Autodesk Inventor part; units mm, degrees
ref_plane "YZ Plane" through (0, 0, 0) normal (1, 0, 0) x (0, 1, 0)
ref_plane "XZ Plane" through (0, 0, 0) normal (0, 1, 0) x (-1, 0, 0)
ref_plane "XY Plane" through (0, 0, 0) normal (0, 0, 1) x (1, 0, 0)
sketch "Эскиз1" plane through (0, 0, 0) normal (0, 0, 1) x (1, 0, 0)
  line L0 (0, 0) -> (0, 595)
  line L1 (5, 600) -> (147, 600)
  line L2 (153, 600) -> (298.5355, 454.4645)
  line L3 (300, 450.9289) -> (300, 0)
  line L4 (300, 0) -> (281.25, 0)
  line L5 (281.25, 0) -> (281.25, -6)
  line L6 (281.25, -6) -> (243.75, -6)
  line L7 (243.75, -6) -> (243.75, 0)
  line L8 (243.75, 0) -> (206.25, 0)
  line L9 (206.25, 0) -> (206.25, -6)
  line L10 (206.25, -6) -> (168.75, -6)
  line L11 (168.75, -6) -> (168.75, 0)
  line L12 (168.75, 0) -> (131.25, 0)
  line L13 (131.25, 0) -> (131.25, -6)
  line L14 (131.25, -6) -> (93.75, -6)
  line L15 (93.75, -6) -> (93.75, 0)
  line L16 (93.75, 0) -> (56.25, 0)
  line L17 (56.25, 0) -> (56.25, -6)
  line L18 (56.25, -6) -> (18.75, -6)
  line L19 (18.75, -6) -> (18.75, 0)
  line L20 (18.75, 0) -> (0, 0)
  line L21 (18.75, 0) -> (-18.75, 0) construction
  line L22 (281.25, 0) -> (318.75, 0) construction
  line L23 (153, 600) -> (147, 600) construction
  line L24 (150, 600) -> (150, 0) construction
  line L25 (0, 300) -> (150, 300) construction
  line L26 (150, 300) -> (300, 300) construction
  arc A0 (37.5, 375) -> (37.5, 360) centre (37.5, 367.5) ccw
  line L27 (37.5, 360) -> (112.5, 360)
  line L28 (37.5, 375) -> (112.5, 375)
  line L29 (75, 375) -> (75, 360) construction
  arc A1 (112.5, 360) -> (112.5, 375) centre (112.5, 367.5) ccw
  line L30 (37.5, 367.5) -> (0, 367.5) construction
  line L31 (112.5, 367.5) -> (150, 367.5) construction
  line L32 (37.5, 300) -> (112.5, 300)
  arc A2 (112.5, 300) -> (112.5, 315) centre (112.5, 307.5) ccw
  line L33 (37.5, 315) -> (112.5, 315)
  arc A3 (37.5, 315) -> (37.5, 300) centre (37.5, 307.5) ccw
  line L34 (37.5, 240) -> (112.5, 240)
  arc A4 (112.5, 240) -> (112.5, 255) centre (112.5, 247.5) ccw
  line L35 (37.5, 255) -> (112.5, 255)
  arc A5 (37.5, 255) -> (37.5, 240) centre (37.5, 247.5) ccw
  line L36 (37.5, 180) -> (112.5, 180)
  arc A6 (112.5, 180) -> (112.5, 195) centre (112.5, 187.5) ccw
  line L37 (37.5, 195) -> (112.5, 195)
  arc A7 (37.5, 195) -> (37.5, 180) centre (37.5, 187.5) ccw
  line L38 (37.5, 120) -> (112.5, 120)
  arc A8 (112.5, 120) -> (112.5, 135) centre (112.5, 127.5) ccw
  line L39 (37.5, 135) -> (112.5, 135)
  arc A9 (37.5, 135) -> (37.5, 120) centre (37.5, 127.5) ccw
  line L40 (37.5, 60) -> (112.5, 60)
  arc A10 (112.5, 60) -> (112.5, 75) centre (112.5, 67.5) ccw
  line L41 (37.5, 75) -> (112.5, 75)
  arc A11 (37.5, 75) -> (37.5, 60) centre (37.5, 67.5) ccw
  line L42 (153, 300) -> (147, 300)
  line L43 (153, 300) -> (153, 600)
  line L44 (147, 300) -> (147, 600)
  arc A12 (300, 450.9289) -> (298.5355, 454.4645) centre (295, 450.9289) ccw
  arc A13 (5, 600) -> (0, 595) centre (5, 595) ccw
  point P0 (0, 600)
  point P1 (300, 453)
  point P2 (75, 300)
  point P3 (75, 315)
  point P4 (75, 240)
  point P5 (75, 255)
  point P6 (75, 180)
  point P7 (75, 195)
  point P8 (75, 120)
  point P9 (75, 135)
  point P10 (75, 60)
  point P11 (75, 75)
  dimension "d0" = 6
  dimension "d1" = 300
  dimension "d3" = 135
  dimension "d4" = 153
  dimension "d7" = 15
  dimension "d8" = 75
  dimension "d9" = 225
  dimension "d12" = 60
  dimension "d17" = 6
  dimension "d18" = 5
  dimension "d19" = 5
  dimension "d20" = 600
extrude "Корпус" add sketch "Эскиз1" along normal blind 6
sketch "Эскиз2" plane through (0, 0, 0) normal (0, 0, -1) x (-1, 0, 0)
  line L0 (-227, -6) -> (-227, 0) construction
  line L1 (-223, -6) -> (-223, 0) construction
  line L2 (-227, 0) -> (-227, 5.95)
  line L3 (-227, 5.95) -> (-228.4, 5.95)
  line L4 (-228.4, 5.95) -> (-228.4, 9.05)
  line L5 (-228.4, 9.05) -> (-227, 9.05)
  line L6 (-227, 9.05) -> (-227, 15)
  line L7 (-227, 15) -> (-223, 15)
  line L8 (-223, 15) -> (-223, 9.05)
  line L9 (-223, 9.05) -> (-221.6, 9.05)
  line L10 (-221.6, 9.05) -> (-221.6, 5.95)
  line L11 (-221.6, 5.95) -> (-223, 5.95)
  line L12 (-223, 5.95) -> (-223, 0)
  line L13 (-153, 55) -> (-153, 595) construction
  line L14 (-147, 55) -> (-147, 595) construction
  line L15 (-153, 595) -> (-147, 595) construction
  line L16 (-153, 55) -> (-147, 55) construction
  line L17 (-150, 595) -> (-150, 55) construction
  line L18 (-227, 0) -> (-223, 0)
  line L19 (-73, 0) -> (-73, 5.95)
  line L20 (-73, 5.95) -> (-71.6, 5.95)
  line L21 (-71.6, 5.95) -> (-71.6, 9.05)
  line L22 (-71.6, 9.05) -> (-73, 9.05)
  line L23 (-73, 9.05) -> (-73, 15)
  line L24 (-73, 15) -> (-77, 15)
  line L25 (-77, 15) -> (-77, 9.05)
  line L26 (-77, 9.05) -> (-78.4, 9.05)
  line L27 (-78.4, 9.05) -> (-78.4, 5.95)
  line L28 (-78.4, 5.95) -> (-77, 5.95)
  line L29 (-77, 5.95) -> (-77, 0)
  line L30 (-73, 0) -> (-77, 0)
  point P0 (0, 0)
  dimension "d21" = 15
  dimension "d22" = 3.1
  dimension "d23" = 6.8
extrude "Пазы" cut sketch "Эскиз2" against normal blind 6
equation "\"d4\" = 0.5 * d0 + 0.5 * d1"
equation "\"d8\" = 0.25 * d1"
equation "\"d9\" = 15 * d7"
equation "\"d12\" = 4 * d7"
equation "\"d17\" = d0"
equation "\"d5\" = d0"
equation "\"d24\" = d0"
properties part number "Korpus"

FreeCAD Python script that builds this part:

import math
import FreeCAD as App
import Part
import Sketcher

V = App.Vector
Q = App.Units.Quantity

doc = App.newDocument("Part")
body = doc.addObject("PartDesign::Body", "Body")

sketch1 = body.newObject("Sketcher::SketchObject", "Sketch")
sketch1.AttachmentSupport = (doc.getObject("XY_Plane"), [""])
sketch1.MapMode = "FlatFace"
sketch1.addGeometry([
    Part.LineSegment(V(0, 595, 0), V(0, 0, 0)),
    Part.LineSegment(V(0, 0, 0), V(18.8, 0, 0)),
    Part.LineSegment(V(18.8, 0, 0), V(18.8, -6, 0)),
    Part.LineSegment(V(18.8, -6, 0), V(56.2, -6, 0)),
    Part.LineSegment(V(56.2, -6, 0), V(56.2, 0, 0)),
    Part.LineSegment(V(56.2, 0, 0), V(93.8, 0, 0)),
    Part.LineSegment(V(93.8, 0, 0), V(93.8, -6, 0)),
    Part.LineSegment(V(93.8, -6, 0), V(131.2, -6, 0)),
    Part.LineSegment(V(131.2, -6, 0), V(131.2, 0, 0)),
    Part.LineSegment(V(131.2, 0, 0), V(168.8, 0, 0)),
    Part.LineSegment(V(168.8, 0, 0), V(168.8, -6, 0)),
    Part.LineSegment(V(168.8, -6, 0), V(206.2, -6, 0)),
    Part.LineSegment(V(206.2, -6, 0), V(206.2, 0, 0)),
    Part.LineSegment(V(206.2, 0, 0), V(243.8, 0, 0)),
    Part.LineSegment(V(243.8, 0, 0), V(243.8, -6, 0)),
    Part.LineSegment(V(243.8, -6, 0), V(281.2, -6, 0)),
    Part.LineSegment(V(281.2, -6, 0), V(281.2, 0, 0)),
    Part.LineSegment(V(281.2, 0, 0), V(300, 0, 0)),
    Part.LineSegment(V(300, 0, 0), V(300, 450.9, 0)),
    Part.ArcOfCircle(Part.Circle(V(295, 450.9, 0), V(0, 0, 1), 5), math.radians(0), math.radians(45)),
    Part.LineSegment(V(298.5, 454.5, 0), V(153, 600, 0)),
    Part.LineSegment(V(153, 600, 0), V(153, 300, 0)),
    Part.LineSegment(V(153, 300, 0), V(147, 300, 0)),
    Part.LineSegment(V(147, 300, 0), V(147, 600, 0)),
    Part.LineSegment(V(147, 600, 0), V(5, 600, 0)),
    Part.ArcOfCircle(Part.Circle(V(5, 595, 0), V(0, 0, 1), 5), math.radians(90), math.radians(180)),
    Part.LineSegment(V(112.5, 60, 0), V(37.5, 60, 0)),
    Part.ArcOfCircle(Part.Circle(V(37.5, 67.5, 0), V(0, 0, 1), 7.5), math.radians(90), math.radians(270)),
    Part.LineSegment(V(37.5, 75, 0), V(112.5, 75, 0)),
    Part.ArcOfCircle(Part.Circle(V(112.5, 67.5, 0), V(0, 0, 1), 7.5), math.radians(-90), math.radians(90)),
    Part.LineSegment(V(112.5, 120, 0), V(37.5, 120, 0)),
    Part.ArcOfCircle(Part.Circle(V(37.5, 127.5, 0), V(0, 0, 1), 7.5), math.radians(90), math.radians(270)),
    Part.LineSegment(V(37.5, 135, 0), V(112.5, 135, 0)),
    Part.ArcOfCircle(Part.Circle(V(112.5, 127.5, 0), V(0, 0, 1), 7.5), math.radians(-90), math.radians(90)),
    Part.LineSegment(V(112.5, 180, 0), V(37.5, 180, 0)),
    Part.ArcOfCircle(Part.Circle(V(37.5, 187.5, 0), V(0, 0, 1), 7.5), math.radians(90), math.radians(270)),
    Part.LineSegment(V(37.5, 195, 0), V(112.5, 195, 0)),
    Part.ArcOfCircle(Part.Circle(V(112.5, 187.5, 0), V(0, 0, 1), 7.5), math.radians(-90), math.radians(90)),
    Part.LineSegment(V(112.5, 240, 0), V(37.5, 240, 0)),
    Part.ArcOfCircle(Part.Circle(V(37.5, 247.5, 0), V(0, 0, 1), 7.5), math.radians(90), math.radians(270)),
    Part.LineSegment(V(37.5, 255, 0), V(112.5, 255, 0)),
    Part.ArcOfCircle(Part.Circle(V(112.5, 247.5, 0), V(0, 0, 1), 7.5), math.radians(-90), math.radians(90)),
    Part.LineSegment(V(112.5, 300, 0), V(37.5, 300, 0)),
    Part.ArcOfCircle(Part.Circle(V(37.5, 307.5, 0), V(0, 0, 1), 7.5), math.radians(90), math.radians(270)),
    Part.LineSegment(V(37.5, 315, 0), V(112.5, 315, 0)),
    Part.ArcOfCircle(Part.Circle(V(112.5, 307.5, 0), V(0, 0, 1), 7.5), math.radians(-90), math.radians(90)),
    Part.ArcOfCircle(Part.Circle(V(37.5, 367.5, 0), V(0, 0, 1), 7.5), math.radians(90), math.radians(270)),
    Part.LineSegment(V(37.5, 375, 0), V(112.5, 375, 0)),
    Part.ArcOfCircle(Part.Circle(V(112.5, 367.5, 0), V(0, 0, 1), 7.5), math.radians(-90), math.radians(90)),
    Part.LineSegment(V(112.5, 360, 0), V(37.5, 360, 0)),
], False)
sketch1.addConstraint([
    Sketcher.Constraint("Coincident", 0, 2, 1, 1),
    Sketcher.Constraint("Coincident", 1, 2, 2, 1),
    Sketcher.Constraint("Coincident", 2, 2, 3, 1),
    Sketcher.Constraint("Coincident", 3, 2, 4, 1),
    Sketcher.Constraint("Coincident", 4, 2, 5, 1),
    Sketcher.Constraint("Coincident", 5, 2, 6, 1),
    Sketcher.Constraint("Coincident", 6, 2, 7, 1),
    Sketcher.Constraint("Coincident", 7, 2, 8, 1),
    Sketcher.Constraint("Coincident", 8, 2, 9, 1),
    Sketcher.Constraint("Coincident", 9, 2, 10, 1),
    Sketcher.Constraint("Coincident", 10, 2, 11, 1),
    Sketcher.Constraint("Coincident", 11, 2, 12, 1),
    Sketcher.Constraint("Coincident", 12, 2, 13, 1),
    Sketcher.Constraint("Coincident", 13, 2, 14, 1),
    Sketcher.Constraint("Coincident", 14, 2, 15, 1),
    Sketcher.Constraint("Coincident", 15, 2, 16, 1),
    Sketcher.Constraint("Coincident", 16, 2, 17, 1),
    Sketcher.Constraint("Coincident", 17, 2, 18, 1),
    Sketcher.Constraint("Tangent", 18, 2, 19, 1),
    Sketcher.Constraint("Tangent", 19, 2, 20, 1),
    Sketcher.Constraint("Coincident", 20, 2, 21, 1),
    Sketcher.Constraint("Coincident", 21, 2, 22, 1),
    Sketcher.Constraint("Coincident", 22, 2, 23, 1),
    Sketcher.Constraint("Coincident", 23, 2, 24, 1),
    Sketcher.Constraint("Tangent", 24, 2, 25, 1),
    Sketcher.Constraint("Tangent", 25, 2, 0, 1),
    Sketcher.Constraint("Tangent", 26, 2, 27, 2),
    Sketcher.Constraint("Tangent", 27, 1, 28, 1),
    Sketcher.Constraint("Tangent", 28, 2, 29, 2),
    Sketcher.Constraint("Tangent", 29, 1, 26, 1),
    Sketcher.Constraint("Tangent", 30, 2, 31, 2),
    Sketcher.Constraint("Tangent", 31, 1, 32, 1),
    Sketcher.Constraint("Tangent", 32, 2, 33, 2),
    Sketcher.Constraint("Tangent", 33, 1, 30, 1),
    Sketcher.Constraint("Tangent", 34, 2, 35, 2),
    Sketcher.Constraint("Tangent", 35, 1, 36, 1),
    Sketcher.Constraint("Tangent", 36, 2, 37, 2),
    Sketcher.Constraint("Tangent", 37, 1, 34, 1),
    Sketcher.Constraint("Tangent", 38, 2, 39, 2),
    Sketcher.Constraint("Tangent", 39, 1, 40, 1),
    Sketcher.Constraint("Tangent", 40, 2, 41, 2),
    Sketcher.Constraint("Tangent", 41, 1, 38, 1),
    Sketcher.Constraint("Tangent", 42, 2, 43, 2),
    Sketcher.Constraint("Tangent", 43, 1, 44, 1),
    Sketcher.Constraint("Tangent", 44, 2, 45, 2),
    Sketcher.Constraint("Tangent", 45, 1, 42, 1),
    Sketcher.Constraint("Tangent", 46, 1, 47, 1),
    Sketcher.Constraint("Tangent", 47, 2, 48, 2),
    Sketcher.Constraint("Tangent", 48, 1, 49, 1),
    Sketcher.Constraint("Tangent", 49, 2, 46, 2),
    Sketcher.Constraint("Vertical", 0),
    Sketcher.Constraint("Horizontal", 1),
    Sketcher.Constraint("Vertical", 2),
    Sketcher.Constraint("Horizontal", 3),
    Sketcher.Constraint("Vertical", 4),
    Sketcher.Constraint("Horizontal", 5),
    Sketcher.Constraint("Vertical", 6),
    Sketcher.Constraint("Horizontal", 7),
    Sketcher.Constraint("Vertical", 8),
    Sketcher.Constraint("Horizontal", 9),
    Sketcher.Constraint("Vertical", 10),
    Sketcher.Constraint("Horizontal", 11),
    Sketcher.Constraint("Vertical", 12),
    Sketcher.Constraint("Horizontal", 13),
    Sketcher.Constraint("Vertical", 14),
    Sketcher.Constraint("Horizontal", 15),
    Sketcher.Constraint("Vertical", 16),
    Sketcher.Constraint("Horizontal", 17),
    Sketcher.Constraint("Vertical", 18),
    Sketcher.Constraint("Vertical", 21),
    Sketcher.Constraint("Horizontal", 22),
    Sketcher.Constraint("Vertical", 23),
    Sketcher.Constraint("Horizontal", 24),
    Sketcher.Constraint("Horizontal", 26),
    Sketcher.Constraint("Horizontal", 28),
    Sketcher.Constraint("Horizontal", 30),
    Sketcher.Constraint("Horizontal", 32),
    Sketcher.Constraint("Horizontal", 34),
    Sketcher.Constraint("Horizontal", 36),
    Sketcher.Constraint("Horizontal", 38),
    Sketcher.Constraint("Horizontal", 40),
    Sketcher.Constraint("Horizontal", 42),
    Sketcher.Constraint("Horizontal", 44),
    Sketcher.Constraint("Horizontal", 47),
    Sketcher.Constraint("Horizontal", 49),
    Sketcher.Constraint("Coincident", 0, 2, -1, 1),
    Sketcher.Constraint("Equal", 19, 25),
    Sketcher.Constraint("Equal", 29, 31),
    Sketcher.Constraint("Equal", 33, 35),
    Sketcher.Constraint("Equal", 37, 39),
    Sketcher.Constraint("Equal", 41, 43),
    Sketcher.Constraint("Equal", 45, 46),
    Sketcher.Constraint("PointOnObject", 4, 2, -1),
    Sketcher.Constraint("PointOnObject", 8, 2, -1),
    Sketcher.Constraint("PointOnObject", 12, 2, -1),
    Sketcher.Constraint("PointOnObject", 16, 2, -1),
    Sketcher.Constraint("Horizontal", 3, 2, 6, 2),
    Sketcher.Constraint("Horizontal", 7, 2, 10, 2),
    Sketcher.Constraint("Horizontal", 11, 2, 14, 2),
    Sketcher.Constraint("Horizontal", 20, 2, 23, 2),
    Sketcher.Constraint("Horizontal", 22, 2, 42, 2),
    Sketcher.Constraint("Vertical", 27, 3, 31, 3),
    Sketcher.Constraint("Vertical", 29, 3, 33, 3),
    Sketcher.Constraint("Vertical", 31, 3, 35, 3),
    Sketcher.Constraint("Vertical", 33, 3, 37, 3),
    Sketcher.Constraint("Vertical", 35, 3, 39, 3),
    Sketcher.Constraint("Vertical", 37, 3, 41, 3),
    Sketcher.Constraint("Vertical", 39, 3, 43, 3),
    Sketcher.Constraint("Vertical", 41, 3, 45, 3),
    Sketcher.Constraint("Vertical", 43, 3, 46, 3),
    Sketcher.Constraint("Vertical", 45, 3, 48, 3),
    Sketcher.Constraint("Equal", 3, 5),
    Sketcher.Constraint("Equal", 5, 7),
    Sketcher.Constraint("Equal", 7, 9),
    Sketcher.Constraint("Equal", 9, 11),
    Sketcher.Constraint("Equal", 11, 13),
    Sketcher.Constraint("Equal", 13, 15),
    Sketcher.Constraint("Equal", 1, 17),
    Sketcher.Constraint("Equal", 22, 2),
    Sketcher.Constraint("Radius", 19, 5.0),
    Sketcher.Constraint("Radius", 27, 7.5),
    Sketcher.Constraint("DistanceX", 22, 2, 22, 1, 6.0),
    Sketcher.Constraint("DistanceX", 26, 2, 26, 1, 75.0),
    Sketcher.Constraint("DistanceY", 21, 2, 21, 1, 300.0),
    Sketcher.Constraint("Angle", 20, Q("135 deg")),
    Sketcher.Constraint("DistanceX", -1, 1, 17, 2, 300.0),
    Sketcher.Constraint("DistanceX", -1, 1, 20, 2, 153.0),
    Sketcher.Constraint("DistanceY", -1, 1, 20, 2, 600.0),
    Sketcher.Constraint("DistanceY", -1, 1, 26, 2, 60.0),
    Sketcher.Constraint("DistanceY", -1, 1, 31, 1, 135.0),
    Sketcher.Constraint("DistanceX", 3, 1, 3, 2, 37.5),
    Sketcher.Constraint("DistanceY", -1, 1, 34, 2, 180.0),
    Sketcher.Constraint("DistanceY", -1, 1, 38, 2, 240.0),
    Sketcher.Constraint("DistanceY", -1, 1, 46, 1, 375.0),
    Sketcher.Constraint("DistanceX", -1, 1, 27, 3, 37.5),
])
pad1 = body.newObject("PartDesign::Pad", "Pad")
pad1.Profile = sketch1
pad1.Length = 6

sketch2 = body.newObject("Sketcher::SketchObject", "Sketch001")
sketch2.AttachmentSupport = (doc.getObject("XY_Plane"), [""])
sketch2.MapMode = "FlatFace"
sketch2.addGeometry([
    Part.LineSegment(V(227, 6, 0), V(227, 0, 0)),
    Part.LineSegment(V(227, 0, 0), V(223, 0, 0)),
    Part.LineSegment(V(223, 0, 0), V(223, 6, 0)),
    Part.LineSegment(V(223, 6, 0), V(221.6, 6, 0)),
    Part.LineSegment(V(221.6, 6, 0), V(221.6, 9.1, 0)),
    Part.LineSegment(V(221.6, 9.1, 0), V(223, 9.1, 0)),
    Part.LineSegment(V(223, 9.1, 0), V(223, 15, 0)),
    Part.LineSegment(V(223, 15, 0), V(227, 15, 0)),
    Part.LineSegment(V(227, 15, 0), V(227, 9.1, 0)),
    Part.LineSegment(V(227, 9.1, 0), V(228.4, 9.1, 0)),
    Part.LineSegment(V(228.4, 9.1, 0), V(228.4, 6, 0)),
    Part.LineSegment(V(228.4, 6, 0), V(227, 6, 0)),
    Part.LineSegment(V(77, 0, 0), V(73, 0, 0)),
    Part.LineSegment(V(73, 0, 0), V(73, 6, 0)),
    Part.LineSegment(V(73, 6, 0), V(71.6, 6, 0)),
    Part.LineSegment(V(71.6, 6, 0), V(71.6, 9.1, 0)),
    Part.LineSegment(V(71.6, 9.1, 0), V(73, 9.1, 0)),
    Part.LineSegment(V(73, 9.1, 0), V(73, 15, 0)),
    Part.LineSegment(V(73, 15, 0), V(77, 15, 0)),
    Part.LineSegment(V(77, 15, 0), V(77, 9.1, 0)),
    Part.LineSegment(V(77, 9.1, 0), V(78.4, 9.1, 0)),
    Part.LineSegment(V(78.4, 9.1, 0), V(78.4, 6, 0)),
    Part.LineSegment(V(78.4, 6, 0), V(77, 6, 0)),
    Part.LineSegment(V(77, 6, 0), V(77, 0, 0)),
], False)
sketch2.addConstraint([
    Sketcher.Constraint("Coincident", 0, 2, 1, 1),
    Sketcher.Constraint("Coincident", 1, 2, 2, 1),
    Sketcher.Constraint("Coincident", 2, 2, 3, 1),
    Sketcher.Constraint("Coincident", 3, 2, 4, 1),
    Sketcher.Constraint("Coincident", 4, 2, 5, 1),
    Sketcher.Constraint("Coincident", 5, 2, 6, 1),
    Sketcher.Constraint("Coincident", 6, 2, 7, 1),
    Sketcher.Constraint("Coincident", 7, 2, 8, 1),
    Sketcher.Constraint("Coincident", 8, 2, 9, 1),
    Sketcher.Constraint("Coincident", 9, 2, 10, 1),
    Sketcher.Constraint("Coincident", 10, 2, 11, 1),
    Sketcher.Constraint("Coincident", 11, 2, 0, 1),
    Sketcher.Constraint("Coincident", 12, 2, 13, 1),
    Sketcher.Constraint("Coincident", 13, 2, 14, 1),
    Sketcher.Constraint("Coincident", 14, 2, 15, 1),
    Sketcher.Constraint("Coincident", 15, 2, 16, 1),
    Sketcher.Constraint("Coincident", 16, 2, 17, 1),
    Sketcher.Constraint("Coincident", 17, 2, 18, 1),
    Sketcher.Constraint("Coincident", 18, 2, 19, 1),
    Sketcher.Constraint("Coincident", 19, 2, 20, 1),
    Sketcher.Constraint("Coincident", 20, 2, 21, 1),
    Sketcher.Constraint("Coincident", 21, 2, 22, 1),
    Sketcher.Constraint("Coincident", 22, 2, 23, 1),
    Sketcher.Constraint("Coincident", 23, 2, 12, 1),
    Sketcher.Constraint("Vertical", 0),
    Sketcher.Constraint("Horizontal", 1),
    Sketcher.Constraint("Vertical", 2),
    Sketcher.Constraint("Horizontal", 3),
    Sketcher.Constraint("Vertical", 4),
    Sketcher.Constraint("Horizontal", 5),
    Sketcher.Constraint("Vertical", 6),
    Sketcher.Constraint("Horizontal", 7),
    Sketcher.Constraint("Vertical", 8),
    Sketcher.Constraint("Horizontal", 9),
    Sketcher.Constraint("Vertical", 10),
    Sketcher.Constraint("Horizontal", 11),
    Sketcher.Constraint("Horizontal", 12),
    Sketcher.Constraint("Vertical", 13),
    Sketcher.Constraint("Horizontal", 14),
    Sketcher.Constraint("Vertical", 15),
    Sketcher.Constraint("Horizontal", 16),
    Sketcher.Constraint("Vertical", 17),
    Sketcher.Constraint("Horizontal", 18),
    Sketcher.Constraint("Vertical", 19),
    Sketcher.Constraint("Horizontal", 20),
    Sketcher.Constraint("Vertical", 21),
    Sketcher.Constraint("Horizontal", 22),
    Sketcher.Constraint("Vertical", 23),
    Sketcher.Constraint("PointOnObject", 0, 2, -1),
    Sketcher.Constraint("PointOnObject", 12, 2, -1),
    Sketcher.Constraint("Horizontal", 5, 2, 8, 2),
    Sketcher.Constraint("Horizontal", 3, 2, 10, 2),
    Sketcher.Constraint("Horizontal", 11, 2, 13, 2),
    Sketcher.Constraint("Horizontal", 9, 2, 15, 2),
    Sketcher.Constraint("Horizontal", 7, 2, 17, 2),
    Sketcher.Constraint("Horizontal", 16, 2, 19, 2),
    Sketcher.Constraint("Horizontal", 14, 2, 21, 2),
    Sketcher.Constraint("Vertical", 2, 2, 5, 2),
    Sketcher.Constraint("Vertical", 0, 2, 7, 2),
    Sketcher.Constraint("Vertical", 13, 2, 16, 2),
    Sketcher.Constraint("Vertical", 19, 2, 22, 2),
    Sketcher.Constraint("Equal", 5, 9),
    Sketcher.Constraint("Equal", 7, 12),
    Sketcher.Constraint("Equal", 11, 14),
    Sketcher.Constraint("Equal", 16, 20),
    Sketcher.Constraint("Equal", 2, 6),
    Sketcher.Constraint("DistanceY", 4, 1, 4, 2, 3.1),
    Sketcher.Constraint("DistanceY", -1, 1, 6, 2, 15.0),
    Sketcher.Constraint("DistanceX", 4, 2, 9, 2, 6.8),
    Sketcher.Constraint("DistanceX", 1, 2, 1, 1, 4.0),
    Sketcher.Constraint("DistanceX", -1, 1, 0, 2, 227.0),
    Sketcher.Constraint("DistanceX", -1, 1, 12, 2, 73.0),
])
pocket1 = body.newObject("PartDesign::Pocket", "Pocket")
pocket1.Profile = sketch2
pocket1.Length = 6
pocket1.Reversed = True

doc.recompute()
